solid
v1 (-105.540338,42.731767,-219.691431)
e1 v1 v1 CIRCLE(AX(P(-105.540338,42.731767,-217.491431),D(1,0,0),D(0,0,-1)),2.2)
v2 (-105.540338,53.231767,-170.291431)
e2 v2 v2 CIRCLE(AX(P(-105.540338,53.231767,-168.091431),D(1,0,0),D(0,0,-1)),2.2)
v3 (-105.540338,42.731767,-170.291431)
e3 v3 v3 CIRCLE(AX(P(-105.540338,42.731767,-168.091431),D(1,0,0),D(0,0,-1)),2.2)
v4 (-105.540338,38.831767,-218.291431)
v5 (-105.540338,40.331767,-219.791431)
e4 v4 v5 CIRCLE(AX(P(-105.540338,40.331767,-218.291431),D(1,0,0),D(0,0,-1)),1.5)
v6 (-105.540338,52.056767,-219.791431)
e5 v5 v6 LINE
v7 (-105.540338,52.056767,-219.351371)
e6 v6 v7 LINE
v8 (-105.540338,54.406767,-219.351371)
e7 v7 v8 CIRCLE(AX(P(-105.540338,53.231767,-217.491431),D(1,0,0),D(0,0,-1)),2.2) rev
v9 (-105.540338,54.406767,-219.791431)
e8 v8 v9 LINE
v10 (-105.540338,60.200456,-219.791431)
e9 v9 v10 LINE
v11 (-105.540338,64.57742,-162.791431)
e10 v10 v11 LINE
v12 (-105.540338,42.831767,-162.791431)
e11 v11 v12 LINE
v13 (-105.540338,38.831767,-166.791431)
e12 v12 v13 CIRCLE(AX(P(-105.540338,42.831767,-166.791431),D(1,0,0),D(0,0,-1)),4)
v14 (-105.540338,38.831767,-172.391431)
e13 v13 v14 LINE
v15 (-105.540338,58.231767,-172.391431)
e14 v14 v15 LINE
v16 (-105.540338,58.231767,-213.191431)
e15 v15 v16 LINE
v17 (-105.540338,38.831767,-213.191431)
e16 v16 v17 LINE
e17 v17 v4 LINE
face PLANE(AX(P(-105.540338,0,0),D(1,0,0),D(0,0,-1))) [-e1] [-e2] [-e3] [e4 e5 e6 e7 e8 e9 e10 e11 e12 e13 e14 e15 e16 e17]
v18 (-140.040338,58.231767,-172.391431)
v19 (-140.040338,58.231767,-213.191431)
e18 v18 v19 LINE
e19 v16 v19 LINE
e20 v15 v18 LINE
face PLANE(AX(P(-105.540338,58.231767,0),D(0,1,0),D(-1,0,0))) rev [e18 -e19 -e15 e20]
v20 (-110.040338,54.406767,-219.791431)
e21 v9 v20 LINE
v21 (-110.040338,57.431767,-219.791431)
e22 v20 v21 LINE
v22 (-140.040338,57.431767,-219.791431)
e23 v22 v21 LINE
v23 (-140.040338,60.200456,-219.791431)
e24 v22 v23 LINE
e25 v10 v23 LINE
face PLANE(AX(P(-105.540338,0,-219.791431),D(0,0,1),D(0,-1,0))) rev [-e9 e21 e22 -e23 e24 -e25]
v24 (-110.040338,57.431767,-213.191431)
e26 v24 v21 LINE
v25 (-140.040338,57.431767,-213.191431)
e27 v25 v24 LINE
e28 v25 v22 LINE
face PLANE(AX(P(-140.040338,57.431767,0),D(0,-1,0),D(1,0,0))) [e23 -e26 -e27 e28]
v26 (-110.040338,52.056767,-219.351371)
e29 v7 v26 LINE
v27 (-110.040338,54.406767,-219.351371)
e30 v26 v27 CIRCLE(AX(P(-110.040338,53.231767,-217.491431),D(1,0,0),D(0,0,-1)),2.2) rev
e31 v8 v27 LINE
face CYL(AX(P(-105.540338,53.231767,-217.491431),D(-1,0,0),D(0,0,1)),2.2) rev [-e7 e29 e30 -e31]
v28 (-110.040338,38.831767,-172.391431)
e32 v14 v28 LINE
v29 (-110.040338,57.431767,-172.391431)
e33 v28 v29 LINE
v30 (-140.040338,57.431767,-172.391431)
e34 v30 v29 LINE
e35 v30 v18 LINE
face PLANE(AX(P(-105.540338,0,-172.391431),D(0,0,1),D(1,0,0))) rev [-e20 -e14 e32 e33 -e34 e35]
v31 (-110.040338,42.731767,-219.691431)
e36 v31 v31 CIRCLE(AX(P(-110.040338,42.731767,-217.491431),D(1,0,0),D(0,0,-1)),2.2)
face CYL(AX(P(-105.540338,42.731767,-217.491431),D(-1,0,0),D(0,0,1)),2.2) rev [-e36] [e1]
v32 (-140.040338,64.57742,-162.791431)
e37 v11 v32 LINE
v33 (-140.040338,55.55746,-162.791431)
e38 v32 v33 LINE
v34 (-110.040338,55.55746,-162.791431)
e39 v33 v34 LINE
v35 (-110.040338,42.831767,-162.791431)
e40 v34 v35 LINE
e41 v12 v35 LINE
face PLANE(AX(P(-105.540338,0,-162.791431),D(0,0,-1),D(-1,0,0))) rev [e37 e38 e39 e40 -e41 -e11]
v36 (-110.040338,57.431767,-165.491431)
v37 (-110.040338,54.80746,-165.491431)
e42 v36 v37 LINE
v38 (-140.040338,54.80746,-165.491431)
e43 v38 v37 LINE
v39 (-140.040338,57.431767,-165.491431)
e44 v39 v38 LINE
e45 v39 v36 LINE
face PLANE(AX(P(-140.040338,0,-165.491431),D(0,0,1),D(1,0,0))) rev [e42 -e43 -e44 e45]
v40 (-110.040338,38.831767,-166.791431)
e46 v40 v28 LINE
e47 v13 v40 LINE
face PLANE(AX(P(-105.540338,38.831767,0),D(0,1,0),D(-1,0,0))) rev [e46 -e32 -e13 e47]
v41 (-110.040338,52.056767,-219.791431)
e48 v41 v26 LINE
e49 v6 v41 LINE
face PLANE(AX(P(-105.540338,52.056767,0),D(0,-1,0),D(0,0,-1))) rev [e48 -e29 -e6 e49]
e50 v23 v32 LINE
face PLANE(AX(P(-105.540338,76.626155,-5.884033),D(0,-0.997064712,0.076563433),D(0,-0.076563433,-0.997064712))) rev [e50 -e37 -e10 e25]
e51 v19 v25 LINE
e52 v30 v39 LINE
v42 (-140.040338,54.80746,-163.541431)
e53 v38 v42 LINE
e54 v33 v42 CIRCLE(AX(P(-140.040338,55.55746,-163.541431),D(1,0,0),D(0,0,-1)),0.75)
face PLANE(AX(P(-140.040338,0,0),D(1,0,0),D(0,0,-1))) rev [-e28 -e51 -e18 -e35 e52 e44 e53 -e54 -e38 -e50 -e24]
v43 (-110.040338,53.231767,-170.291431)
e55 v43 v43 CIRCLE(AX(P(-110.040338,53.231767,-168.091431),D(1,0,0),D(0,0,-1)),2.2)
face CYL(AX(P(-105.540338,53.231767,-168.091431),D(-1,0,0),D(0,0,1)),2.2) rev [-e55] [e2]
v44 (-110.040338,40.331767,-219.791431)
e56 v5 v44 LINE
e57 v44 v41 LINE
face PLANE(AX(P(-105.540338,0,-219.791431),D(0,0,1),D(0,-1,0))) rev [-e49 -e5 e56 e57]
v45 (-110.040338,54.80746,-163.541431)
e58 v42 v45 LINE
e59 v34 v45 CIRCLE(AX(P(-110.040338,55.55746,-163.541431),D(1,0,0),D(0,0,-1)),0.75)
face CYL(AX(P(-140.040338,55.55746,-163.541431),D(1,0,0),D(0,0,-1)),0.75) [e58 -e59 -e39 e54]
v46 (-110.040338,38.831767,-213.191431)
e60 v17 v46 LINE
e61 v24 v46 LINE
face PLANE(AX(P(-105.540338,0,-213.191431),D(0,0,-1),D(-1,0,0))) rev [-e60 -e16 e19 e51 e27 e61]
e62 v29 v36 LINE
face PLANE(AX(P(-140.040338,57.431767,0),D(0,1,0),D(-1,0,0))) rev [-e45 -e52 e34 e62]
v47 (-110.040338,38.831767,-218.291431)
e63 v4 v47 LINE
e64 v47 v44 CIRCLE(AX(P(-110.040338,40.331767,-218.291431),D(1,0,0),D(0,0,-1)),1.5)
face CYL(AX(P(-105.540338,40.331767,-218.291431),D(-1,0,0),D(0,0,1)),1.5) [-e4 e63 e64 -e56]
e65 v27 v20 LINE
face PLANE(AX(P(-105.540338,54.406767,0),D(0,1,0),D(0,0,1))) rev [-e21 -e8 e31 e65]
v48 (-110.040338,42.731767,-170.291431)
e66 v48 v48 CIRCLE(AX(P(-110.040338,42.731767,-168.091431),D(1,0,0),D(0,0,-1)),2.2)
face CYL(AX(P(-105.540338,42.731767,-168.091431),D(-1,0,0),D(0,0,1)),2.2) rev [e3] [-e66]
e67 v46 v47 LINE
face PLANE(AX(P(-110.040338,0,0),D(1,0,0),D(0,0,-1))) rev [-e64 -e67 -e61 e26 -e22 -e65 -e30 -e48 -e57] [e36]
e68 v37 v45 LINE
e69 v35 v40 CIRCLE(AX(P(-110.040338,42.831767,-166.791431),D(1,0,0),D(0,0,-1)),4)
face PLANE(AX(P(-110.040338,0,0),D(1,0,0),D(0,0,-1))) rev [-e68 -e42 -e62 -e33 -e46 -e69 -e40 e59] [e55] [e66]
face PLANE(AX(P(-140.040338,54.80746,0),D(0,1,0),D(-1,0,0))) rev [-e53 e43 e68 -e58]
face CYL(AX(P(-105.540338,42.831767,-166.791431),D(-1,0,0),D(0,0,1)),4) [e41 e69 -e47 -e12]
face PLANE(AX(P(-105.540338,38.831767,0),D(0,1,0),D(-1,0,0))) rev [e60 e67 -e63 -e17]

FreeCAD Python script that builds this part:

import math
import FreeCAD as App
import Part
import Sketcher
Q = App.Units.Quantity

doc = App.newDocument("Part")
body = doc.addObject("PartDesign::Body", "Body")

# Sketch on YZ plane
sketch1 = body.newObject("Sketcher::SketchObject", "Sketch")
sketch1.AttachmentSupport = (doc.getObject("YZ_Plane"), [""])
sketch1.MapMode = "FlatFace"
sketch1.AttachmentOffset = App.Placement(App.Vector(0, 0, -110.040338), App.Rotation())
sketch1.addGeometry([
    Part.LineSegment(App.Vector(54.41, -219.79, 0), App.Vector(60.2, -219.79, 0)),  # 0
    Part.LineSegment(App.Vector(60.2, -219.79, 0), App.Vector(64.58, -162.79, 0)),  # 1
    Part.LineSegment(App.Vector(64.58, -162.79, 0), App.Vector(42.83, -162.79, 0)),  # 2
    Part.ArcOfCircle(Part.Circle(App.Vector(42.83, -166.79, 0), App.Vector(0, 0, 1), 4), math.radians(90), math.radians(180)),  # 3
    Part.LineSegment(App.Vector(38.83, -166.79, 0), App.Vector(38.83, -172.39, 0)),  # 4
    Part.LineSegment(App.Vector(38.83, -172.39, 0), App.Vector(58.23, -172.39, 0)),  # 5
    Part.LineSegment(App.Vector(58.23, -172.39, 0), App.Vector(58.23, -213.19, 0)),  # 6
    Part.LineSegment(App.Vector(58.23, -213.19, 0), App.Vector(38.83, -213.19, 0)),  # 7
    Part.LineSegment(App.Vector(38.83, -213.19, 0), App.Vector(38.83, -218.29, 0)),  # 8
    Part.ArcOfCircle(Part.Circle(App.Vector(40.33, -218.29, 0), App.Vector(0, 0, 1), 1.5), math.radians(-180), math.radians(-90)),  # 9
    Part.LineSegment(App.Vector(40.33, -219.79, 0), App.Vector(52.06, -219.79, 0)),  # 10
    Part.LineSegment(App.Vector(52.06, -219.79, 0), App.Vector(52.06, -219.35, 0)),  # 11
    Part.ArcOfCircle(Part.Circle(App.Vector(53.23, -217.49, 0), App.Vector(0, 0, 1), 2.2), math.radians(-58), math.radians(238)),  # 12
    Part.LineSegment(App.Vector(54.41, -219.35, 0), App.Vector(54.41, -219.79, 0)),  # 13
    Part.Circle(App.Vector(42.73, -168.09, 0), App.Vector(0, 0, 1), 2.2),  # 14
    Part.Circle(App.Vector(42.73, -217.49, 0), App.Vector(0, 0, 1), 2.2),  # 15
    Part.Circle(App.Vector(53.23, -168.09, 0), App.Vector(0, 0, 1), 2.2),  # 16
], False)
sketch1.addConstraint([
    Sketcher.Constraint("Coincident", 0, 2, 1, 1),
    Sketcher.Constraint("Coincident", 1, 2, 2, 1),
    Sketcher.Constraint("Tangent", 2, 2, 3, 1),
    Sketcher.Constraint("Tangent", 3, 2, 4, 1),
    Sketcher.Constraint("Coincident", 4, 2, 5, 1),
    Sketcher.Constraint("Coincident", 5, 2, 6, 1),
    Sketcher.Constraint("Coincident", 6, 2, 7, 1),
    Sketcher.Constraint("Coincident", 7, 2, 8, 1),
    Sketcher.Constraint("Tangent", 8, 2, 9, 1),
    Sketcher.Constraint("Tangent", 9, 2, 10, 1),
    Sketcher.Constraint("Coincident", 10, 2, 11, 1),
    Sketcher.Constraint("Coincident", 11, 2, 12, 2),
    Sketcher.Constraint("Coincident", 12, 1, 13, 1),
    Sketcher.Constraint("Coincident", 13, 2, 0, 1),
    Sketcher.Constraint("Horizontal", 0),
    Sketcher.Constraint("Horizontal", 2),
    Sketcher.Constraint("Vertical", 4),
    Sketcher.Constraint("Horizontal", 5),
    Sketcher.Constraint("Vertical", 6),
    Sketcher.Constraint("Horizontal", 7),
    Sketcher.Constraint("Vertical", 8),
    Sketcher.Constraint("Horizontal", 10),
    Sketcher.Constraint("Vertical", 11),
    Sketcher.Constraint("Vertical", 13),
    Sketcher.Constraint("Equal", 12, 14),
    Sketcher.Constraint("Equal", 14, 15),
    Sketcher.Constraint("Equal", 15, 16),
    Sketcher.Constraint("Horizontal", 12, 3, 15, 3),
    Sketcher.Constraint("Horizontal", 14, 3, 16, 3),
    Sketcher.Constraint("Horizontal", 0, 2, 9, 2),
    Sketcher.Constraint("Horizontal", 11, 2, 12, 1),
    Sketcher.Constraint("Vertical", 14, 3, 15, 3),
    Sketcher.Constraint("Vertical", 12, 3, 16, 3),
    Sketcher.Constraint("Vertical", 4, 2, 7, 2),
    Sketcher.Constraint("Radius", 3, Q("4 mm")),
    Sketcher.Constraint("Diameter", 14, Q("4.4 mm")),
    Sketcher.Constraint("Radius", 9, Q("1.5 mm")),
    Sketcher.Constraint("DistanceX", 5, 1, 5, 2, Q("19.4 mm")),
    Sketcher.Constraint("DistanceY", 4, 2, 4, 1, Q("5.6 mm")),
    Sketcher.Constraint("DistanceY", 6, 2, 6, 1, Q("40.8 mm")),
    Sketcher.Constraint("DistanceY", 8, 2, 8, 1, Q("5.1 mm")),
    Sketcher.Constraint("DistanceX", 16, 3, 5, 2, Q("5 mm")),
    Sketcher.Constraint("DistanceY", 9, 3, 12, 3, Q("0.8 mm")),
    Sketcher.Constraint("DistanceX", 14, 3, 3, 3, Q("0.1 mm")),
    Sketcher.Constraint("DistanceY", 14, 3, 3, 3, Q("1.3 mm")),
    Sketcher.Constraint("DistanceX", 10, 1, 10, 2, Q("11.725 mm")),
    Sketcher.Constraint("DistanceX", 0, 1, 0, 2, Q("5.79369 mm")),
    Sketcher.Constraint("DistanceX", 2, 2, 2, 1, Q("21.745653 mm")),
    Sketcher.Constraint("DistanceY", 3, 3, -1, 1, Q("166.791431 mm")),
    Sketcher.Constraint("DistanceX", -1, 1, 1, 2, Q("64.57742 mm")),
])
pad1 = body.newObject("PartDesign::Pad", "Pad")
pad1.Profile = sketch1
pad1.Length = 4.5

# Sketch on YZ plane
sketch2 = body.newObject("Sketcher::SketchObject", "Sketch001")
sketch2.AttachmentSupport = (doc.getObject("YZ_Plane"), [""])
sketch2.MapMode = "FlatFace"
sketch2.AttachmentOffset = App.Placement(App.Vector(0, 0, -110.040338), App.Rotation())
sketch2.addGeometry([
    Part.LineSegment(App.Vector(64.6, -162.8, 0), App.Vector(55.6, -162.8, 0)),  # 0
    Part.ArcOfCircle(Part.Circle(App.Vector(55.6, -163.5, 0), App.Vector(0, 0, 1), 0.8), math.radians(90), math.radians(180)),  # 1
    Part.LineSegment(App.Vector(54.8, -163.5, 0), App.Vector(54.8, -165.5, 0)),  # 2
    Part.LineSegment(App.Vector(54.8, -165.5, 0), App.Vector(57.4, -165.5, 0)),  # 3
    Part.LineSegment(App.Vector(57.4, -165.5, 0), App.Vector(57.4, -172.4, 0)),  # 4
    Part.LineSegment(App.Vector(57.4, -172.4, 0), App.Vector(58.2, -172.4, 0)),  # 5
    Part.LineSegment(App.Vector(58.2, -172.4, 0), App.Vector(58.2, -213.2, 0)),  # 6
    Part.LineSegment(App.Vector(58.2, -213.2, 0), App.Vector(57.4, -213.2, 0)),  # 7
    Part.LineSegment(App.Vector(57.4, -213.2, 0), App.Vector(57.4, -219.8, 0)),  # 8
    Part.LineSegment(App.Vector(57.4, -219.8, 0), App.Vector(60.2, -219.8, 0)),  # 9
    Part.LineSegment(App.Vector(60.2, -219.8, 0), App.Vector(64.6, -162.8, 0)),  # 10
], False)
sketch2.addConstraint([
    Sketcher.Constraint("Tangent", 0, 2, 1, 1),
    Sketcher.Constraint("Tangent", 1, 2, 2, 1),
    Sketcher.Constraint("Coincident", 2, 2, 3, 1),
    Sketcher.Constraint("Coincident", 3, 2, 4, 1),
    Sketcher.Constraint("Coincident", 4, 2, 5, 1),
    Sketcher.Constraint("Coincident", 5, 2, 6, 1),
    Sketcher.Constraint("Coincident", 6, 2, 7, 1),
    Sketcher.Constraint("Coincident", 7, 2, 8, 1),
    Sketcher.Constraint("Coincident", 8, 2, 9, 1),
    Sketcher.Constraint("Coincident", 9, 2, 10, 1),
    Sketcher.Constraint("Coincident", 10, 2, 0, 1),
    Sketcher.Constraint("Horizontal", 0),
    Sketcher.Constraint("Vertical", 2),
    Sketcher.Constraint("Horizontal", 3),
    Sketcher.Constraint("Vertical", 4),
    Sketcher.Constraint("Horizontal", 5),
    Sketcher.Constraint("Vertical", 6),
    Sketcher.Constraint("Horizontal", 7),
    Sketcher.Constraint("Vertical", 8),
    Sketcher.Constraint("Horizontal", 9),
    Sketcher.Constraint("Vertical", 4, 2, 7, 2),
    Sketcher.Constraint("Radius", 1, Q("0.75 mm")),
    Sketcher.Constraint("DistanceX", 5, 1, 5, 2, Q("0.8 mm")),
    Sketcher.Constraint("DistanceY", 4, 2, 4, 1, Q("6.9 mm")),
    Sketcher.Constraint("DistanceY", 6, 2, 6, 1, Q("40.8 mm")),
    Sketcher.Constraint("DistanceY", 8, 2, 8, 1, Q("6.6 mm")),
    Sketcher.Constraint("DistanceY", 2, 2, 2, 1, Q("1.95 mm")),
    Sketcher.Constraint("DistanceX", 0, 2, 0, 1, Q("9.01996 mm")),
    Sketcher.Constraint("DistanceX", 9, 1, 9, 2, Q("2.76869 mm")),
    Sketcher.Constraint("DistanceX", 3, 1, 3, 2, Q("2.624307 mm")),
    Sketcher.Constraint("DistanceX", -1, 1, 1, 3, Q("55.55746 mm")),
    Sketcher.Constraint("DistanceY", 1, 3, -1, 1, Q("163.541431 mm")),
])
pad2 = body.newObject("PartDesign::Pad", "Pad001")
pad2.Profile = sketch2
pad2.Length = 30
pad2.Reversed = True

doc.recompute()
